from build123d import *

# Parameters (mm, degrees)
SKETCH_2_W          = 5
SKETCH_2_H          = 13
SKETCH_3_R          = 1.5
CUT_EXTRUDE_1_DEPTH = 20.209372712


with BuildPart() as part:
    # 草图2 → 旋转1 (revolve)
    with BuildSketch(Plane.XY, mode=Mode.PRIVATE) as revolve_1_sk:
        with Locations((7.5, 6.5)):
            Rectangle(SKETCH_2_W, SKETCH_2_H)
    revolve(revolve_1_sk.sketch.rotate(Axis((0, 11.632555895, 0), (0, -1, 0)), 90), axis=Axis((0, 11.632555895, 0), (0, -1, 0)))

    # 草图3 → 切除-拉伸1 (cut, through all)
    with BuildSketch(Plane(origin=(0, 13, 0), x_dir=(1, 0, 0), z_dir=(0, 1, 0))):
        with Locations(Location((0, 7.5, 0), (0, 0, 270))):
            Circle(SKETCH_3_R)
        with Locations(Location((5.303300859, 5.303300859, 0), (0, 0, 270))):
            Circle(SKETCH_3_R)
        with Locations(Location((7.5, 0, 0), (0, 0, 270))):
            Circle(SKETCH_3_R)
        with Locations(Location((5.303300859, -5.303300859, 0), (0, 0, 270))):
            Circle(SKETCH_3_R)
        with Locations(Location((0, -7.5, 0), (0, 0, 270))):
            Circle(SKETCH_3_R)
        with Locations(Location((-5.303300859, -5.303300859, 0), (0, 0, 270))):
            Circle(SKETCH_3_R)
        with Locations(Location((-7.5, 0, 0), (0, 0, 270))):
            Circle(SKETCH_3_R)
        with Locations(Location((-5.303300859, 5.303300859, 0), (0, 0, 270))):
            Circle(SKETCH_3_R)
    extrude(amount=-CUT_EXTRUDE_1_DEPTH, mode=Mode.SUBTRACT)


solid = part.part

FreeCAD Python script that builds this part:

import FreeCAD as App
import Part
import Sketcher

V = App.Vector

doc = App.newDocument("Part")
body = doc.addObject("PartDesign::Body", "Body")

sketch1 = doc.addObject("Sketcher::SketchObject", "Sketch")
body.addObject(sketch1)
sketch1.AttachmentSupport = (doc.XY_Plane, [""])
sketch1.MapMode = "FlatFace"
sketch1.addGeometry([
    Part.LineSegment(V(5, 13, 0), V(5, 0, 0)),
    Part.LineSegment(V(5, 0, 0), V(10, 0, 0)),
    Part.LineSegment(V(10, 0, 0), V(10, 13, 0)),
    Part.LineSegment(V(10, 13, 0), V(5, 13, 0)),
], False)
sketch1.addConstraint([
    Sketcher.Constraint("Coincident", 0, 2, 1, 1),
    Sketcher.Constraint("Coincident", 1, 2, 2, 1),
    Sketcher.Constraint("Coincident", 2, 2, 3, 1),
    Sketcher.Constraint("Coincident", 3, 2, 0, 1),
    Sketcher.Constraint("Vertical", 0),
    Sketcher.Constraint("Horizontal", 1),
    Sketcher.Constraint("Vertical", 2),
    Sketcher.Constraint("Horizontal", 3),
    Sketcher.Constraint("PointOnObject", 0, 2, -1),
    Sketcher.Constraint("DistanceX", 1, 1, 1, 2, 5.0),
    Sketcher.Constraint("DistanceY", 0, 2, 0, 1, 13.0),
    Sketcher.Constraint("DistanceX", -1, 1, 0, 2, 5.0),
])
revolution = doc.addObject("PartDesign::Revolution", "Revolution")
body.addObject(revolution)
revolution.Profile = sketch1
revolution.ReferenceAxis = (sketch1, ["V_Axis"])
revolution.Angle = 360

sketch2 = doc.addObject("Sketcher::SketchObject", "Sketch001")
body.addObject(sketch2)
sketch2.AttachmentSupport = (doc.XZ_Plane, [""])
sketch2.MapMode = "FlatFace"
sketch2.AttachmentOffset = App.Placement(V(0, 0, -13), App.Rotation())
sketch2.addGeometry([
    Part.Circle(V(0, -7.5, 0), V(0, 0, 1), 1.5),
    Part.Circle(V(5.3, -5.3, 0), V(0, 0, 1), 1.5),
    Part.Circle(V(7.5, 0, 0), V(0, 0, 1), 1.5),
    Part.Circle(V(5.3, 5.3, 0), V(0, 0, 1), 1.5),
    Part.Circle(V(0, 7.5, 0), V(0, 0, 1), 1.5),
    Part.Circle(V(-5.3, 5.3, 0), V(0, 0, 1), 1.5),
    Part.Circle(V(-7.5, 0, 0), V(0, 0, 1), 1.5),
    Part.Circle(V(-5.3, -5.3, 0), V(0, 0, 1), 1.5),
], False)
sketch2.addConstraint([
    Sketcher.Constraint("Equal", 0, 1),
    Sketcher.Constraint("Equal", 1, 2),
    Sketcher.Constraint("Equal", 2, 3),
    Sketcher.Constraint("Equal", 3, 4),
    Sketcher.Constraint("Equal", 4, 5),
    Sketcher.Constraint("Equal", 5, 6),
    Sketcher.Constraint("Equal", 6, 7),
    Sketcher.Constraint("Symmetric", 0, 3, 4, 3, -1, 1),
    Sketcher.Constraint("Symmetric", 1, 3, 5, 3, -1, 1),
    Sketcher.Constraint("Symmetric", 2, 3, 6, 3, -1, 1),
    Sketcher.Constraint("Symmetric", 3, 3, 7, 3, -1, 1),
    Sketcher.Constraint("Symmetric", 3, 3, 5, 3, -2),
    Sketcher.Constraint("PointOnObject", 0, 3, -2),
    Sketcher.Constraint("PointOnObject", 2, 3, -1),
    Sketcher.Constraint("Diameter", 0, 3.0),
    Sketcher.Constraint("DistanceY", 0, 3, 4, 3, 15.0),
    Sketcher.Constraint("DistanceX", -1, 1, 2, 3, 7.5),
    Sketcher.Constraint("DistanceX", -1, 1, 1, 3, 5.303301),
    Sketcher.Constraint("DistanceY", 1, 3, -1, 1, 5.303301),
])
pocket1 = doc.addObject("PartDesign::Pocket", "Pocket")
body.addObject(pocket1)
pocket1.Profile = sketch2
pocket1.Type = "ThroughAll"
pocket1.Reversed = True

doc.recompute()
